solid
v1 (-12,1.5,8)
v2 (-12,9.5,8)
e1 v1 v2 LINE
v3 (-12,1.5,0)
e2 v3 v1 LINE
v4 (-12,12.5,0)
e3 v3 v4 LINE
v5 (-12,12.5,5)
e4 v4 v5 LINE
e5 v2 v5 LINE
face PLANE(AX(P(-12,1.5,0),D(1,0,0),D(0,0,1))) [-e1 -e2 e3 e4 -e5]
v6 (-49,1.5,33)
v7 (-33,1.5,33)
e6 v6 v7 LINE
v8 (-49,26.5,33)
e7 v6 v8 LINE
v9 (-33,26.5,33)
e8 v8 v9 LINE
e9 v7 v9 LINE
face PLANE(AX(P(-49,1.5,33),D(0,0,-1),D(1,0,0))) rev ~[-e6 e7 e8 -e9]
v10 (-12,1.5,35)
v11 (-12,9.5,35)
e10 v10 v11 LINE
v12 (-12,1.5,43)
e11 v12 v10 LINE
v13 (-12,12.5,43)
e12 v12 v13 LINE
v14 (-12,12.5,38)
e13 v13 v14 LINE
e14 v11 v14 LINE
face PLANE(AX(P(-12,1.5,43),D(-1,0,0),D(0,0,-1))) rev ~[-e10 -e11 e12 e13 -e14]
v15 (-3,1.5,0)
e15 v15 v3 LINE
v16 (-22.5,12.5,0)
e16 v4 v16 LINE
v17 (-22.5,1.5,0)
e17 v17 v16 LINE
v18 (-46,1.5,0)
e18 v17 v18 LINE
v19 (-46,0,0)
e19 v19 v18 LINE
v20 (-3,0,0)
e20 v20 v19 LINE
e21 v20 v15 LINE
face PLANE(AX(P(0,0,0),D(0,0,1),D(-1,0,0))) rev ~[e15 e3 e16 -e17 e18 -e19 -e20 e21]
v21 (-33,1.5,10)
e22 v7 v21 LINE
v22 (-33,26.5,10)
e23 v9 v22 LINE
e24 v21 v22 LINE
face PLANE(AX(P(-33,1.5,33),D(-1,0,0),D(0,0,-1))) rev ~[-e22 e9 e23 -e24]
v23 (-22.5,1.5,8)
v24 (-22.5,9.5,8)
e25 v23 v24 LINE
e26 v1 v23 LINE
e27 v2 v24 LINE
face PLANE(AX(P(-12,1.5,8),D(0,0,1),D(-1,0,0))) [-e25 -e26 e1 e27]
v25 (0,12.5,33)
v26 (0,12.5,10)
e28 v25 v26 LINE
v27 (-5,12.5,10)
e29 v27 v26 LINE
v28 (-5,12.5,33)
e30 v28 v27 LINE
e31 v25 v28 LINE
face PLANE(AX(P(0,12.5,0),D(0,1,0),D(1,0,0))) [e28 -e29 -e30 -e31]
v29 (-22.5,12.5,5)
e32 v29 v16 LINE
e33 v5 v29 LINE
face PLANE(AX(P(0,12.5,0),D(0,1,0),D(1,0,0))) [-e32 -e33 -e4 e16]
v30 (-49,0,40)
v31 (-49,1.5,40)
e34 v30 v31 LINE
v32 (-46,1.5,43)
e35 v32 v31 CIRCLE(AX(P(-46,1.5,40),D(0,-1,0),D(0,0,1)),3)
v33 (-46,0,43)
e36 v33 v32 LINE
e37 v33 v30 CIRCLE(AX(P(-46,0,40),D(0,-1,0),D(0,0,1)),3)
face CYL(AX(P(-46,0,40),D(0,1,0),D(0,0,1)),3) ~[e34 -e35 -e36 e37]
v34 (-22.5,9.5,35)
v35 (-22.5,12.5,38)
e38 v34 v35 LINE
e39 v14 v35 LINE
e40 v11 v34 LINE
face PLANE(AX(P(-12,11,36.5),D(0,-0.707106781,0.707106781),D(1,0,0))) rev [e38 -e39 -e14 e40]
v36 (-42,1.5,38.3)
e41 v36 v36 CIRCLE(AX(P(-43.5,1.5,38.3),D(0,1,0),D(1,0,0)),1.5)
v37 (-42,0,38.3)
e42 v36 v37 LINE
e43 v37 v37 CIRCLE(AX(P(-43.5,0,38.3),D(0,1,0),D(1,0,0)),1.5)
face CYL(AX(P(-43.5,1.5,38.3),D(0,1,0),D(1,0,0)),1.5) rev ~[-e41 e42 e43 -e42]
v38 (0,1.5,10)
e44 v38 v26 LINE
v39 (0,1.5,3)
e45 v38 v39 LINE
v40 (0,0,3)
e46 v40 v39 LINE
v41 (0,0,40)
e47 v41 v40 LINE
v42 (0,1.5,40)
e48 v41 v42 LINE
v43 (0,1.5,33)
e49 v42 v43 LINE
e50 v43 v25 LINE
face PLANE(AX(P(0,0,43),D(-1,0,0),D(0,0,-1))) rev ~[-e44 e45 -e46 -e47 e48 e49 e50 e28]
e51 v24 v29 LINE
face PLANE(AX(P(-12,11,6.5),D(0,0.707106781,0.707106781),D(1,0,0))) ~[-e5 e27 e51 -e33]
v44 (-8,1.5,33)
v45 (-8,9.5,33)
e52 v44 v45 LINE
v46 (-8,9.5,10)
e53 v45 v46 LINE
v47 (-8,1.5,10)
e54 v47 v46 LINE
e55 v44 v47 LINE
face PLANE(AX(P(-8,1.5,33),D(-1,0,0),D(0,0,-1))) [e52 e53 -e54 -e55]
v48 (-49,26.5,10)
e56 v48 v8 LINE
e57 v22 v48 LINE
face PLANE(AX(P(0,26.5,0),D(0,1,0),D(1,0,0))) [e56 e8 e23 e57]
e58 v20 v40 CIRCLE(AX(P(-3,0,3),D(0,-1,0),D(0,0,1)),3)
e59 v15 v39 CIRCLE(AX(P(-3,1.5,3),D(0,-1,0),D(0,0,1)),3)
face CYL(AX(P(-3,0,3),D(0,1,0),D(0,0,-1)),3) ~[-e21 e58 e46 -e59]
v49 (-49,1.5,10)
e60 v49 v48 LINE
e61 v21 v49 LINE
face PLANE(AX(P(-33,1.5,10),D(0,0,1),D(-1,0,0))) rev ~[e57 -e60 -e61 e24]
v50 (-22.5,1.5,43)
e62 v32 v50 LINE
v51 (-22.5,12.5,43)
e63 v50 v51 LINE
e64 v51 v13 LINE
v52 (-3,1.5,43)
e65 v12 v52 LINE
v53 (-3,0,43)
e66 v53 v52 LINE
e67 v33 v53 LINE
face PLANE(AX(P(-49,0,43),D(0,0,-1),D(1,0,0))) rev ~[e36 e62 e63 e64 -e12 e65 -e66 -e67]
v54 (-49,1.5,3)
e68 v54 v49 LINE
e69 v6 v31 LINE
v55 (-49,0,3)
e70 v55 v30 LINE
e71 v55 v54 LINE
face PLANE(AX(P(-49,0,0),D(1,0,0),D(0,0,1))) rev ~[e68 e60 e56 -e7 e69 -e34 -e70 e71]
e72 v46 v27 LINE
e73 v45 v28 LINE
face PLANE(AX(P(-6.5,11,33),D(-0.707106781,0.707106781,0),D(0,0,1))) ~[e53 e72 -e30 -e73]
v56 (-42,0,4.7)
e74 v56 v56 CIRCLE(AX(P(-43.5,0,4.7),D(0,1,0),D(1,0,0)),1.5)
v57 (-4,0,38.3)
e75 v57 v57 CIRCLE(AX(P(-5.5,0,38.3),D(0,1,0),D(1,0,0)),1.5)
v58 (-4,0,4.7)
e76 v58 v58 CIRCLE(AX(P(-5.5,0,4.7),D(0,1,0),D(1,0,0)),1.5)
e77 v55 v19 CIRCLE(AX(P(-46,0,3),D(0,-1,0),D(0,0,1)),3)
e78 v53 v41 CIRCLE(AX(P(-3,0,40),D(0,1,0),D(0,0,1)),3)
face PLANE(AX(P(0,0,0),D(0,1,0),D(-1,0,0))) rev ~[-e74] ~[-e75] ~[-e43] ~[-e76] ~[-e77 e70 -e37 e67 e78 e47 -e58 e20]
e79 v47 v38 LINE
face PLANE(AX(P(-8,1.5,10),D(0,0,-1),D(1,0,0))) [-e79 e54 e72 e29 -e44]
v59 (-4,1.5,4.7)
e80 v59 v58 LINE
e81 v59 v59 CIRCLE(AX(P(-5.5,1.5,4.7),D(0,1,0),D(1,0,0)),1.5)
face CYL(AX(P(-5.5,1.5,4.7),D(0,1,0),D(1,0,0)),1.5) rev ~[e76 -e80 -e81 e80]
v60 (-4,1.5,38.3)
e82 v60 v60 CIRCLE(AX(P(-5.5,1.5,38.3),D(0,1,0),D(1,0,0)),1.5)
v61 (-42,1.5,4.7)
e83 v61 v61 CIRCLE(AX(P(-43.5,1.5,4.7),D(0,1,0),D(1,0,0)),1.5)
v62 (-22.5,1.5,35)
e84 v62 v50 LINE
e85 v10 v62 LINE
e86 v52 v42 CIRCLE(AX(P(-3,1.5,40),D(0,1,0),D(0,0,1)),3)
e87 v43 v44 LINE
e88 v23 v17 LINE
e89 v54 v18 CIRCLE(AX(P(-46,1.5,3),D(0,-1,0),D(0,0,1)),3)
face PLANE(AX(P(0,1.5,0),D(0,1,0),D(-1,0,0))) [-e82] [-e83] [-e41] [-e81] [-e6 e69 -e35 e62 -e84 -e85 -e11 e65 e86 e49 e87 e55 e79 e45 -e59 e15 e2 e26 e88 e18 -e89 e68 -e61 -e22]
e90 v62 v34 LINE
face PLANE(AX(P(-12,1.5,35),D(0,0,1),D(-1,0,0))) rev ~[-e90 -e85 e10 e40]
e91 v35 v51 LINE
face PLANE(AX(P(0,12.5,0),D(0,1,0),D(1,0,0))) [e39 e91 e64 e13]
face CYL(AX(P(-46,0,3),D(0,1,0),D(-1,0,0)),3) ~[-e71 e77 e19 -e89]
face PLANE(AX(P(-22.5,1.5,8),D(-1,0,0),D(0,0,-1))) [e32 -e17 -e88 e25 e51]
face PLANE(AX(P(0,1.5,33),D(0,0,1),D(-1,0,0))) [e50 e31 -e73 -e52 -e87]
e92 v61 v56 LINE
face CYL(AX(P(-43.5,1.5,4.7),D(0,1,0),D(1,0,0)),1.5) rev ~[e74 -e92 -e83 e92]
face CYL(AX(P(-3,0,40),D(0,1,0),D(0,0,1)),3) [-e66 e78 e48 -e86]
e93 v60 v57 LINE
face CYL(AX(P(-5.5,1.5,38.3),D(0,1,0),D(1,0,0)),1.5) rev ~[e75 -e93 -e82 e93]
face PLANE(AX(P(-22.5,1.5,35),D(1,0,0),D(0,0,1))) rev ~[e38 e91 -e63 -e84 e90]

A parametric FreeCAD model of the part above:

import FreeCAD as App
import Part
import Sketcher
Q = App.Units.Quantity


def edges_at(feature, points):
    """Names of the edges that pass closest to the given points."""
    edges = feature.Shape.Edges
    near = lambda p: min(range(len(edges)), key=lambda i: edges[i].distToShape(Part.Vertex(*p))[0])
    return sorted({f"Edge{near(p) + 1}" for p in points})


def add_polygon(sketch, points):
    """Adds a closed chain of lines whose ends are joined by coincident constraints."""
    first, n = sketch.GeometryCount, len(points)
    for a, b in zip(points, points[1:] + points[:1]):
        sketch.addGeometry(Part.LineSegment(App.Vector(*a, 0), App.Vector(*b, 0)), False)
    for i in range(n):
        sketch.addConstraint(Sketcher.Constraint("Coincident", first + i, 2, first + (i + 1) % n, 1))

doc = App.newDocument("Part")
body = doc.addObject("PartDesign::Body", "Body")

sketch1 = doc.addObject("Sketcher::SketchObject", "Sketch")
body.addObject(sketch1)
sketch1.AttachmentSupport = (doc.XZ_Plane, [""])
sketch1.MapMode = "FlatFace"
add_polygon(sketch1, [(0, 43), (0, 0), (-49, 0), (-49, 43)])
sketch1.addConstraint([
    Sketcher.Constraint("Vertical", 0),
    Sketcher.Constraint("Horizontal", 1),
    Sketcher.Constraint("Vertical", 2),
    Sketcher.Constraint("Horizontal", 3),
    Sketcher.Constraint("Coincident", 0, 2, -1, 1),
    Sketcher.Constraint("DistanceX", 1, 2, 1, 1, Q("49 mm")),
    Sketcher.Constraint("DistanceY", 0, 2, 0, 1, Q("43 mm")),
])
pad1 = doc.addObject("PartDesign::Pad", "Pad")
body.addObject(pad1)
pad1.Profile = sketch1
pad1.Length = 1.5
pad1.Reversed = True

sketch2 = doc.addObject("Sketcher::SketchObject", "Sketch001")
body.addObject(sketch2)
sketch2.AttachmentSupport = (doc.XZ_Plane, [""])
sketch2.MapMode = "FlatFace"
sketch2.AttachmentOffset = App.Placement(App.Vector(0, 0, -1.5), App.Rotation())
sketch2.addGeometry([
    Part.Circle(App.Vector(-43.5, 4.7, 0), App.Vector(0, 0, 1), 1.5),
    Part.Circle(App.Vector(-43.5, 38.3, 0), App.Vector(0, 0, 1), 1.5),
    Part.Circle(App.Vector(-5.5, 4.7, 0), App.Vector(0, 0, 1), 1.5),
    Part.Circle(App.Vector(-5.5, 38.3, 0), App.Vector(0, 0, 1), 1.5),
], False)
sketch2.addConstraint([
    Sketcher.Constraint("Equal", 0, 1),
    Sketcher.Constraint("Equal", 1, 2),
    Sketcher.Constraint("Equal", 2, 3),
    Sketcher.Constraint("Horizontal", 0, 3, 2, 3),
    Sketcher.Constraint("Horizontal", 1, 3, 3, 3),
    Sketcher.Constraint("Vertical", 0, 3, 1, 3),
    Sketcher.Constraint("Vertical", 2, 3, 3, 3),
    Sketcher.Constraint("Diameter", 0, Q("3 mm")),
    Sketcher.Constraint("DistanceY", -1, 1, 0, 3, Q("4.7 mm")),
    Sketcher.Constraint("DistanceX", 2, 3, -1, 1, Q("5.5 mm")),
    Sketcher.Constraint("DistanceX", 0, 3, 2, 3, Q("38 mm")),
    Sketcher.Constraint("DistanceY", -1, 1, 1, 3, Q("38.3 mm")),
])
pocket1 = doc.addObject("PartDesign::Pocket", "Pocket")
body.addObject(pocket1)
pocket1.Profile = sketch2
pocket1.Length = 1.5
pocket1.Reversed = True

sketch3 = doc.addObject("Sketcher::SketchObject", "Sketch002")
body.addObject(sketch3)
sketch3.AttachmentSupport = (doc.XZ_Plane, [""])
sketch3.MapMode = "FlatFace"
sketch3.AttachmentOffset = App.Placement(App.Vector(0, 0, -1.5), App.Rotation())
add_polygon(sketch3, [(-12, 8), (-12, 0), (-22, 0), (-22, 8)])
add_polygon(sketch3, [(-22, 43), (-12, 43), (-12, 35), (-22, 35)])
add_polygon(sketch3, [(0, 33), (0, 10), (-8, 10), (-8, 33)])
sketch3.addConstraint([
    Sketcher.Constraint("Vertical", 0),
    Sketcher.Constraint("Horizontal", 1),
    Sketcher.Constraint("Vertical", 2),
    Sketcher.Constraint("Horizontal", 3),
    Sketcher.Constraint("Horizontal", 4),
    Sketcher.Constraint("Vertical", 5),
    Sketcher.Constraint("Horizontal", 6),
    Sketcher.Constraint("Vertical", 7),
    Sketcher.Constraint("Vertical", 8),
    Sketcher.Constraint("Horizontal", 9),
    Sketcher.Constraint("Vertical", 10),
    Sketcher.Constraint("Horizontal", 11),
    Sketcher.Constraint("PointOnObject", 0, 2, -1),
    Sketcher.Constraint("PointOnObject", 8, 2, -2),
    Sketcher.Constraint("Vertical", 3, 2, 4, 2),
    Sketcher.Constraint("Vertical", 2, 2, 6, 2),
    Sketcher.Constraint("Equal", 11, 0),
    Sketcher.Constraint("Equal", 2, 5),
    Sketcher.Constraint("DistanceX", 9, 2, 9, 1, Q("8 mm")),
    Sketcher.Constraint("DistanceX", 1, 2, 1, 1, Q("10.5 mm")),
    Sketcher.Constraint("DistanceX", 0, 2, -1, 1, Q("12 mm")),
    Sketcher.Constraint("DistanceY", -1, 1, 8, 2, Q("10 mm")),
    Sketcher.Constraint("DistanceY", 10, 2, 4, 2, Q("10 mm")),
    Sketcher.Constraint("DistanceY", 8, 2, 8, 1, Q("23 mm")),
])
pad2 = doc.addObject("PartDesign::Pad", "Pad001")
body.addObject(pad2)
pad2.Profile = sketch3
pad2.Length = 11
pad2.Reversed = True
doc.recompute()

chamfer = doc.addObject("PartDesign::Chamfer", "Chamfer")
body.addObject(chamfer)
chamfer.Base = (pad2, edges_at(pad2, [(-17.25, 12.5, 8), (-17.25, 12.5, 35), (-8, 12.5, 21.5)]))
chamfer.Size = 3
doc.recompute()

fillet = doc.addObject("PartDesign::Fillet", "Fillet")
body.addObject(fillet)
fillet.Base = (chamfer, edges_at(chamfer, [
    (0, 0.75, 0),
    (0, 0.75, 43),
    (-49, 0.75, 43),
    (-49, 0.75, 0),
]))
fillet.Radius = 3

sketch4 = doc.addObject("Sketcher::SketchObject", "Sketch003")
body.addObject(sketch4)
sketch4.AttachmentSupport = (doc.XZ_Plane, [""])
sketch4.MapMode = "FlatFace"
sketch4.AttachmentOffset = App.Placement(App.Vector(0, 0, -1.5), App.Rotation())
add_polygon(sketch4, [(-33, 10), (-49, 10), (-49, 33), (-33, 33)])
sketch4.addConstraint([
    Sketcher.Constraint("Horizontal", 0),
    Sketcher.Constraint("Vertical", 1),
    Sketcher.Constraint("Horizontal", 2),
    Sketcher.Constraint("Vertical", 3),
    Sketcher.Constraint("DistanceX", 0, 2, 0, 1, Q("16 mm")),
    Sketcher.Constraint("DistanceY", 1, 1, 1, 2, Q("23 mm")),
    Sketcher.Constraint("DistanceY", -1, 1, 0, 2, Q("10 mm")),
    Sketcher.Constraint("DistanceX", 0, 2, -1, 1, Q("49 mm")),
])
pad3 = doc.addObject("PartDesign::Pad", "Pad002")
body.addObject(pad3)
pad3.Profile = sketch4
pad3.Length = 25
pad3.Reversed = True

doc.recompute()
